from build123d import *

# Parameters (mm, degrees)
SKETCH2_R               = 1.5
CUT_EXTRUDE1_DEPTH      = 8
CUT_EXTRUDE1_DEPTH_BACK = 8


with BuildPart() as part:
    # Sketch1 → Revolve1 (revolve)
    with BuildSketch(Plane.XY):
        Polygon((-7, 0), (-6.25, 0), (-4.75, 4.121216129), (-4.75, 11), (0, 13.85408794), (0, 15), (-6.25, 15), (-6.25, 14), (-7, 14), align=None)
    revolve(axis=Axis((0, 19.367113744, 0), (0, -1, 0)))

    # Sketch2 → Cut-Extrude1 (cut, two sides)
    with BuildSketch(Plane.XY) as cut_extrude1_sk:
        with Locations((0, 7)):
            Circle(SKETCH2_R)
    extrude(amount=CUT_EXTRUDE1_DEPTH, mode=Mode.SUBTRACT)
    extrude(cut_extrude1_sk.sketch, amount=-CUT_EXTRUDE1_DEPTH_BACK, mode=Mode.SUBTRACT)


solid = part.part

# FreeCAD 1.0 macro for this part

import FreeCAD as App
import Part
import Sketcher
from FreeCAD import Vector
Q = App.Units.Quantity

doc = App.newDocument("Part")
body = doc.addObject("PartDesign::Body", "Body")

sketch1 = doc.addObject("Sketcher::SketchObject", "Sketch")
body.addObject(sketch1)
sketch1.AttachmentSupport = (doc.XY_Plane, [""])
sketch1.MapMode = "FlatFace"
sketch1.addGeometry([
    Part.LineSegment(Vector(-7, 0, 0), Vector(-6.2, 0, 0)),
    Part.LineSegment(Vector(-6.2, 0, 0), Vector(-4.8, 4.1, 0)),
    Part.LineSegment(Vector(-4.8, 4.1, 0), Vector(-4.8, 11, 0)),
    Part.LineSegment(Vector(-4.8, 11, 0), Vector(0, 13.9, 0)),
    Part.LineSegment(Vector(0, 13.9, 0), Vector(0, 15, 0)),
    Part.LineSegment(Vector(0, 15, 0), Vector(-6.2, 15, 0)),
    Part.LineSegment(Vector(-6.2, 15, 0), Vector(-6.2, 14, 0)),
    Part.LineSegment(Vector(-6.2, 14, 0), Vector(-7, 14, 0)),
    Part.LineSegment(Vector(-7, 14, 0), Vector(-7, 0, 0)),
], False)
sketch1.addConstraint([
    Sketcher.Constraint("Coincident", 0, 2, 1, 1),
    Sketcher.Constraint("Coincident", 1, 2, 2, 1),
    Sketcher.Constraint("Coincident", 2, 2, 3, 1),
    Sketcher.Constraint("Coincident", 3, 2, 4, 1),
    Sketcher.Constraint("Coincident", 4, 2, 5, 1),
    Sketcher.Constraint("Coincident", 5, 2, 6, 1),
    Sketcher.Constraint("Coincident", 6, 2, 7, 1),
    Sketcher.Constraint("Coincident", 7, 2, 8, 1),
    Sketcher.Constraint("Coincident", 8, 2, 0, 1),
    Sketcher.Constraint("Horizontal", 0),
    Sketcher.Constraint("Vertical", 2),
    Sketcher.Constraint("Vertical", 4),
    Sketcher.Constraint("Horizontal", 5),
    Sketcher.Constraint("Vertical", 6),
    Sketcher.Constraint("Horizontal", 7),
    Sketcher.Constraint("Vertical", 8),
    Sketcher.Constraint("PointOnObject", 0, 2, -1),
    Sketcher.Constraint("PointOnObject", 3, 2, -2),
    Sketcher.Constraint("Vertical", 0, 2, 5, 2),
    Sketcher.Constraint("DistanceY", 6, 2, 6, 1, 1.0),
    Sketcher.Constraint("DistanceY", 8, 2, 8, 1, 14.0),
    Sketcher.Constraint("Angle", 1, Q("70 deg")),
    Sketcher.Constraint("Angle", 3, Q("31 deg")),
    Sketcher.Constraint("DistanceY", -1, 1, 2, 2, 11.0),
    Sketcher.Constraint("DistanceX", 7, 2, -1, 1, 7.0),
    Sketcher.Constraint("DistanceX", 0, 1, 0, 2, 0.75),
    Sketcher.Constraint("DistanceX", 0, 2, 1, 2, 1.5),
])
revolution = doc.addObject("PartDesign::Revolution", "Revolution")
body.addObject(revolution)
revolution.Profile = sketch1
revolution.ReferenceAxis = (sketch1, ["V_Axis"])
revolution.Angle = 360

sketch2 = doc.addObject("Sketcher::SketchObject", "Sketch001")
body.addObject(sketch2)
sketch2.AttachmentSupport = (doc.XY_Plane, [""])
sketch2.MapMode = "FlatFace"
sketch2.addGeometry(Part.Circle(Vector(0, 7, 0), Vector(0, 0, 1), 1.5), False)
sketch2.addConstraint([
    Sketcher.Constraint("PointOnObject", 0, 3, -2),
    Sketcher.Constraint("Diameter", 0, 3.0),
    Sketcher.Constraint("DistanceY", -1, 1, 0, 3, 7.0),
])
pocket1 = doc.addObject("PartDesign::Pocket", "Pocket")
body.addObject(pocket1)
pocket1.Profile = sketch2
pocket1.Type = "ThroughAll"
pocket1.Midplane = True

doc.recompute()
